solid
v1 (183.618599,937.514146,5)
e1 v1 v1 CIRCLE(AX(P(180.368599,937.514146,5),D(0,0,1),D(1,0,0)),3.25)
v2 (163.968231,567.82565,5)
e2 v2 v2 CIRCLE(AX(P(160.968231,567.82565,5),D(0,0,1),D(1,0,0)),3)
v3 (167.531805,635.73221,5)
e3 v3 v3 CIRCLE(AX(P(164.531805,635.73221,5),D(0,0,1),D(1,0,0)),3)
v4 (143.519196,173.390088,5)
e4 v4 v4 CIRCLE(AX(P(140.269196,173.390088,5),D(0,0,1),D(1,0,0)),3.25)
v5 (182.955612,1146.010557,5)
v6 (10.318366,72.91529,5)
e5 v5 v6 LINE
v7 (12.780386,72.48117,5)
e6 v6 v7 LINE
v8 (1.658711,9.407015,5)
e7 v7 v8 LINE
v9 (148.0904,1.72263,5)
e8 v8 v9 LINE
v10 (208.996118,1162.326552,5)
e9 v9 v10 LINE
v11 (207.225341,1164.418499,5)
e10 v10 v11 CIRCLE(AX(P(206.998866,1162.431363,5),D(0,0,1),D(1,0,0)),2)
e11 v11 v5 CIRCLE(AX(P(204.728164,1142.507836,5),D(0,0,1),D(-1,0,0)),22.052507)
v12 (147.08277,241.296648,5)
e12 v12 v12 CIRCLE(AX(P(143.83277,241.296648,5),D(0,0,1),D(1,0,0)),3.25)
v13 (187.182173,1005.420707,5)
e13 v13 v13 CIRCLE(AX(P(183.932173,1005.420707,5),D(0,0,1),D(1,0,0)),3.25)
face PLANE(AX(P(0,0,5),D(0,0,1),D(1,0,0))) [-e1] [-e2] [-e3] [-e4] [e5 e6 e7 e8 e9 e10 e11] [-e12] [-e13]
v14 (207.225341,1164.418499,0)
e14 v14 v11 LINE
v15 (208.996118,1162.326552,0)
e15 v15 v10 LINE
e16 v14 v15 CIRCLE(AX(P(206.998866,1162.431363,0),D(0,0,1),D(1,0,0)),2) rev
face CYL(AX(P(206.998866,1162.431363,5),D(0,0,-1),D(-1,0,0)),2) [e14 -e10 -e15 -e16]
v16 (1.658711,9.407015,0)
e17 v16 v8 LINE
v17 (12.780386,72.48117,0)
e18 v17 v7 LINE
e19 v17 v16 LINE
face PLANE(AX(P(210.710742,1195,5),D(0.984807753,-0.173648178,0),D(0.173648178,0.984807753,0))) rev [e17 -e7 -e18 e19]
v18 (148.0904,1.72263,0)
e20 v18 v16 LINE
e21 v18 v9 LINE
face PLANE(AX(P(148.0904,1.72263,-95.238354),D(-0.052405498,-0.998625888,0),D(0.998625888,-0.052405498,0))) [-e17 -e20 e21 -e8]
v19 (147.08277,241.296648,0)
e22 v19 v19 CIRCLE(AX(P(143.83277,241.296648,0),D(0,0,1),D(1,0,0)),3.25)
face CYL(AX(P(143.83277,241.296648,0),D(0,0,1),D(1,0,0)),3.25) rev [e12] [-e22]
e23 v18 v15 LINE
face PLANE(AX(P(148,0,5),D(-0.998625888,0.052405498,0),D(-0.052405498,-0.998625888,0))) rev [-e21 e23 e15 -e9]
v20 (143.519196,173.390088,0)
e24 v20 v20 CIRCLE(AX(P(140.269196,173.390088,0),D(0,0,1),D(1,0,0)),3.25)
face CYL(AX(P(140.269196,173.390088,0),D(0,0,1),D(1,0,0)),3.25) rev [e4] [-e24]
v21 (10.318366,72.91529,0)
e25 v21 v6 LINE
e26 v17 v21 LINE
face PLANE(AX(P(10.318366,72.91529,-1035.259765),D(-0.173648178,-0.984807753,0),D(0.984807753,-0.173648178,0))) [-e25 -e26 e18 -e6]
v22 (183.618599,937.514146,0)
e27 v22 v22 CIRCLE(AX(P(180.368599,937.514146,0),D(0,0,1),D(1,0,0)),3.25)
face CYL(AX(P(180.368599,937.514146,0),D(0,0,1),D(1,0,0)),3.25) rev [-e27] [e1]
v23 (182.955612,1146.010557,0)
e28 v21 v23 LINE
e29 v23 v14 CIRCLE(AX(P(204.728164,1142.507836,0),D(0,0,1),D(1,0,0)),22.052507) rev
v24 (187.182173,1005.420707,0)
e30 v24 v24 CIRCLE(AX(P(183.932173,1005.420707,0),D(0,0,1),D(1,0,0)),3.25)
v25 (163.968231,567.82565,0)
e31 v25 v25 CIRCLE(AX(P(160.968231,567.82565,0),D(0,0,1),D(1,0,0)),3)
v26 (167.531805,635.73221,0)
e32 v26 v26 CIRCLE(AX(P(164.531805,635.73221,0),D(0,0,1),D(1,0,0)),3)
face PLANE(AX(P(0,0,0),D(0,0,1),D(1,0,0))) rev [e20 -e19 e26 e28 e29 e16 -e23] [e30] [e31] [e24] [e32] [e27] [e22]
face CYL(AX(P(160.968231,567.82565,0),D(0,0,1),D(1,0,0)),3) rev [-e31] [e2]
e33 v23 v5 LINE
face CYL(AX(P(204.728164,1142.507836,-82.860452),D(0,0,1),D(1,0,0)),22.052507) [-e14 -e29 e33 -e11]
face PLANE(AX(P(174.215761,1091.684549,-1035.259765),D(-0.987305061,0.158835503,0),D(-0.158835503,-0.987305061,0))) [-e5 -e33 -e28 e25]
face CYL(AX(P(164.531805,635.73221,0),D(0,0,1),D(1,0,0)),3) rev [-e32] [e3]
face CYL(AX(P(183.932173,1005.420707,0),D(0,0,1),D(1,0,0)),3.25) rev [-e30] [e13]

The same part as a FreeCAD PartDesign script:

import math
import FreeCAD as App
import Part
import Sketcher
Q = App.Units.Quantity


def edges_at(feature, points):
    """Names of the edges that pass closest to the given points."""
    edges = feature.Shape.Edges
    near = lambda p: min(range(len(edges)), key=lambda i: edges[i].distToShape(Part.Vertex(*p))[0])
    return sorted({f"Edge{near(p) + 1}" for p in points})


def add_polygon(sketch, points):
    """Adds a closed chain of lines whose ends are joined by coincident constraints."""
    first, n = sketch.GeometryCount, len(points)
    for a, b in zip(points, points[1:] + points[:1]):
        sketch.addGeometry(Part.LineSegment(App.Vector(*a, 0), App.Vector(*b, 0)), False)
    for i in range(n):
        sketch.addConstraint(Sketcher.Constraint("Coincident", first + i, 2, first + (i + 1) % n, 1))

doc = App.newDocument("Part")
body = doc.addObject("PartDesign::Body", "Body")

# Sketch on XY plane
sketch1 = body.newObject("Sketcher::SketchObject", "Sketch")
sketch1.AttachmentSupport = (doc.getObject("XY_Plane"), [""])
sketch1.MapMode = "FlatFace"
add_polygon(sketch1, [(0, 0), (148, 0), (211, 1195)])  # lines 0-2
sketch1.addConstraint(Sketcher.Constraint("Horizontal", 0))
sketch1.addConstraint(Sketcher.Constraint("Coincident", 2, 2, -1, 1))
sketch1.addConstraint(Sketcher.Constraint("DistanceX", 0, 1, 0, 2, Q("148 mm")))
sketch1.addConstraint(Sketcher.Constraint("Angle", 2, Q("-100 deg")))
sketch1.addConstraint(Sketcher.Constraint("DistanceY", -1, 1, 1, 2, Q("1195 mm")))
pad1 = body.newObject("PartDesign::Pad", "Pad")
pad1.Profile = sketch1
pad1.Length = 5
doc.recompute()

fillet = body.newObject("PartDesign::Fillet", "Fillet")
fillet.Base = (pad1, edges_at(pad1, [(210.711, 1195, 2.5)]))
fillet.Radius = 2

# Sketch on XY plane
sketch2 = body.newObject("Sketcher::SketchObject", "Sketch001")
sketch2.AttachmentSupport = (doc.getObject("XY_Plane"), [""])
sketch2.MapMode = "FlatFace"
sketch2.AttachmentOffset = App.Placement(App.Vector(0, 0, 5), App.Rotation())
add_polygon(sketch2, [(191.9, 1088.6), (174.2, 1091.7), (10.3, 72.9), (12.8, 72.5)])  # lines 0-3
sketch2.addConstraint(Sketcher.Constraint("Parallel", 0, 2))
sketch2.addConstraint(Sketcher.Constraint("Perpendicular", 2, 3))
sketch2.addConstraint(Sketcher.Constraint("Angle", 0, Q("170 deg")))
sketch2.addConstraint(Sketcher.Constraint("Distance", 0, Q("18 mm")))
sketch2.addConstraint(Sketcher.Constraint("Distance", 2, Q("2.5 mm")))
sketch2.addConstraint(Sketcher.Constraint("DistanceX", -1, 1, 3, 2, Q("191.942301 mm")))
sketch2.addConstraint(Sketcher.Constraint("Distance", 1, Q("1031.86877 mm")))
sketch2.addConstraint(Sketcher.Constraint("DistanceY", -1, 1, 0, 2, Q("1091.684549 mm")))
pad2 = body.newObject("PartDesign::Pad", "Pad001")
pad2.Profile = sketch2
pad2.Length = 5
pad2.Reversed = True

# Sketch on XY plane
sketch3 = body.newObject("Sketcher::SketchObject", "Sketch002")
sketch3.AttachmentSupport = (doc.getObject("XY_Plane"), [""])
sketch3.MapMode = "FlatFace"
sketch3.AttachmentOffset = App.Placement(App.Vector(0, 0, 5), App.Rotation())
sketch3.addGeometry(Part.LineSegment(App.Vector(183, 1146, 0), App.Vector(174.2, 1091.7, 0)), False)
sketch3.addGeometry(Part.LineSegment(App.Vector(174.2, 1091.7, 0), App.Vector(191.9, 1088.6, 0)), False)
sketch3.addGeometry(Part.LineSegment(App.Vector(191.9, 1088.6, 0), App.Vector(205, 1162.8, 0)), False)
sketch3.addGeometry(Part.ArcOfCircle(Part.Circle(App.Vector(207, 1162.4, 0), App.Vector(0, 0, 1), 2), math.radians(83), math.radians(170)), False)
sketch3.addGeometry(Part.ArcOfCircle(Part.Circle(App.Vector(204.7, 1142.5, 0), App.Vector(0, 0, 1), 22.1), math.radians(83), math.radians(171)), False)
sketch3.addConstraint(Sketcher.Constraint("Coincident", 0, 2, 1, 1))
sketch3.addConstraint(Sketcher.Constraint("Coincident", 1, 2, 2, 1))
sketch3.addConstraint(Sketcher.Constraint("Tangent", 2, 2, 3, 2))
sketch3.addConstraint(Sketcher.Constraint("Tangent", 3, 1, 4, 1))
sketch3.addConstraint(Sketcher.Constraint("Tangent", 4, 2, 0, 1))
sketch3.addConstraint(Sketcher.Constraint("Perpendicular", 1, 2))
sketch3.addConstraint(Sketcher.Constraint("Radius", 3, Q("2 mm")))
sketch3.addConstraint(Sketcher.Constraint("Angle", 1, Q("-10 deg")))
sketch3.addConstraint(Sketcher.Constraint("Distance", 1, Q("18 mm")))
sketch3.addConstraint(Sketcher.Constraint("Radius", 4, Q("22.052507 mm")))
sketch3.addConstraint(Sketcher.Constraint("DistanceX", -1, 1, 1, 2, Q("191.942301 mm")))
sketch3.addConstraint(Sketcher.Constraint("DistanceY", -1, 1, 3, 1, Q("1164.418499 mm")))
sketch3.addConstraint(Sketcher.Constraint("DistanceX", 4, 3, 3, 3, Q("2.270702 mm")))
sketch3.addConstraint(Sketcher.Constraint("Distance", 0, Q("55.024541 mm")))
pad3 = body.newObject("PartDesign::Pad", "Pad002")
pad3.Profile = sketch3
pad3.Length = 5
pad3.Reversed = True

# Sketch on XY plane
sketch4 = body.newObject("Sketcher::SketchObject", "Sketch003")
sketch4.AttachmentSupport = (doc.getObject("XY_Plane"), [""])
sketch4.MapMode = "FlatFace"
sketch4.AttachmentOffset = App.Placement(App.Vector(0, 0, 5), App.Rotation())
add_polygon(sketch4, [(2.1, 12), (0, 0), (148, 0), (148.1, 1.7)])  # lines 0-3
sketch4.addConstraint(Sketcher.Constraint("Horizontal", 1))
sketch4.addConstraint(Sketcher.Constraint("Coincident", 0, 2, -1, 1))
sketch4.addConstraint(Sketcher.Constraint("DistanceX", 1, 1, 1, 2, Q("148 mm")))
sketch4.addConstraint(Sketcher.Constraint("Angle", 0, Q("-100 deg")))
sketch4.addConstraint(Sketcher.Constraint("Distance", 0, Q("12.16615 mm")))
sketch4.addConstraint(Sketcher.Constraint("Distance", 2, Q("1.68512 mm")))
sketch4.addConstraint(Sketcher.Constraint("DistanceX", -1, 1, 2, 2, Q("148.08831 mm")))
pad4 = body.newObject("PartDesign::Pad", "Pad003")
pad4.Profile = sketch4
pad4.Length = 5
pad4.Reversed = True

# Sketch on XY plane
sketch5 = body.newObject("Sketcher::SketchObject", "Sketch004")
sketch5.AttachmentSupport = (doc.getObject("XY_Plane"), [""])
sketch5.MapMode = "FlatFace"
sketch5.AttachmentOffset = App.Placement(App.Vector(0, 0, 5), App.Rotation())
add_polygon(sketch5, [(148.7, 12.9), (0.5, 3.1), (0, 0), (148, 0)])  # lines 0-3
sketch5.addConstraint(Sketcher.Constraint("Horizontal", 2))
sketch5.addConstraint(Sketcher.Constraint("Coincident", 1, 2, -1, 1))
sketch5.addConstraint(Sketcher.Constraint("DistanceX", 2, 1, 2, 2, Q("148 mm")))
sketch5.addConstraint(Sketcher.Constraint("Angle", 1, Q("-100 deg")))
sketch5.addConstraint(Sketcher.Constraint("DistanceY", -1, 1, 0, 2, Q("3.093031 mm")))
sketch5.addConstraint(Sketcher.Constraint("DistanceX", -1, 1, 3, 2, Q("148.67928 mm")))
sketch5.addConstraint(Sketcher.Constraint("DistanceY", 0, 2, 3, 2, Q("9.851161 mm")))
pocket1 = body.newObject("PartDesign::Pocket", "Pocket")
pocket1.Profile = sketch5
pocket1.Type = "ThroughAll"

# Sketch on XY plane
sketch6 = body.newObject("Sketcher::SketchObject", "Sketch005")
sketch6.AttachmentSupport = (doc.getObject("XY_Plane"), [""])
sketch6.MapMode = "FlatFace"
sketch6.AttachmentOffset = App.Placement(App.Vector(0, 0, 5), App.Rotation())
sketch6.addGeometry(Part.Circle(App.Vector(180.4, 937.5, 0), App.Vector(0, 0, 1), 3.2), False)
sketch6.addGeometry(Part.Circle(App.Vector(183.9, 1005.4, 0), App.Vector(0, 0, 1), 3.2), False)
sketch6.addGeometry(Part.Circle(App.Vector(143.8, 241.3, 0), App.Vector(0, 0, 1), 3.2), False)
sketch6.addGeometry(Part.Circle(App.Vector(140.3, 173.4, 0), App.Vector(0, 0, 1), 3.2), False)
sketch6.addConstraint(Sketcher.Constraint("Equal", 0, 1))
sketch6.addConstraint(Sketcher.Constraint("Equal", 1, 2))
sketch6.addConstraint(Sketcher.Constraint("Equal", 2, 3))
sketch6.addConstraint(Sketcher.Constraint("Diameter", 0, Q("6.5 mm")))
sketch6.addConstraint(Sketcher.Constraint("DistanceX", -1, 1, 0, 3, Q("180.368599 mm")))
sketch6.addConstraint(Sketcher.Constraint("DistanceY", 2, 3, 0, 3, Q("696.217498 mm")))
sketch6.addConstraint(Sketcher.Constraint("DistanceX", -1, 1, 2, 3, Q("143.83277 mm")))
sketch6.addConstraint(Sketcher.Constraint("DistanceY", -1, 1, 2, 3, Q("241.296648 mm")))
sketch6.addConstraint(Sketcher.Constraint("DistanceY", 0, 3, 1, 3, Q("67.90656 mm")))
sketch6.addConstraint(Sketcher.Constraint("DistanceY", 3, 3, 2, 3, Q("67.90656 mm")))
sketch6.addConstraint(Sketcher.Constraint("DistanceX", -1, 1, 1, 3, Q("183.932173 mm")))
sketch6.addConstraint(Sketcher.Constraint("DistanceX", -1, 1, 3, 3, Q("140.269196 mm")))
pocket2 = body.newObject("PartDesign::Pocket", "Pocket001")
pocket2.Profile = sketch6
pocket2.Type = "ThroughAll"

# Sketch on XY plane
sketch7 = body.newObject("Sketcher::SketchObject", "Sketch006")
sketch7.AttachmentSupport = (doc.getObject("XY_Plane"), [""])
sketch7.MapMode = "FlatFace"
sketch7.AttachmentOffset = App.Placement(App.Vector(0, 0, 5), App.Rotation())
add_polygon(sketch7, [(148, 2), (149, 13), (54, 7)])  # lines 0-2
sketch7.addConstraint(Sketcher.Constraint("Perpendicular", 0, 2))
sketch7.addConstraint(Sketcher.Constraint("DistanceX", -1, 1, 2, 2, Q("148.0904 mm")))
sketch7.addConstraint(Sketcher.Constraint("DistanceY", 1, 2, 0, 2, Q("6.289398 mm")))
sketch7.addConstraint(Sketcher.Constraint("Distance", 2, Q("94.115391 mm")))
sketch7.addConstraint(Sketcher.Constraint("DistanceX", -1, 1, 0, 2, Q("148.67928 mm")))
sketch7.addConstraint(Sketcher.Constraint("DistanceY", -1, 1, 2, 2, Q("1.72263 mm")))
pad5 = body.newObject("PartDesign::Pad", "Pad004")
pad5.Profile = sketch7
pad5.Length = 5
pad5.Reversed = True

# Sketch on XY plane
sketch8 = body.newObject("Sketcher::SketchObject", "Sketch007")
sketch8.AttachmentSupport = (doc.getObject("XY_Plane"), [""])
sketch8.MapMode = "FlatFace"
sketch8.AttachmentOffset = App.Placement(App.Vector(0, 0, 5), App.Rotation())
add_polygon(sketch8, [(54, 7), (2, 9), (1, 3)])  # lines 0-2
sketch8.addConstraint(Sketcher.Constraint("Angle", 1, Q("-100 deg")))
sketch8.addConstraint(Sketcher.Constraint("Distance", 2, Q("53.677249 mm")))
sketch8.addConstraint(Sketcher.Constraint("DistanceX", -1, 1, 0, 2, Q("1.658711 mm")))
sketch8.addConstraint(Sketcher.Constraint("DistanceY", -1, 1, 1, 2, Q("3.093031 mm")))
sketch8.addConstraint(Sketcher.Constraint("DistanceY", 2, 2, 0, 2, Q("2.752221 mm")))
sketch8.addConstraint(Sketcher.Constraint("DistanceX", 1, 2, 2, 2, Q("53.558948 mm")))
pocket3 = body.newObject("PartDesign::Pocket", "Pocket002")
pocket3.Profile = sketch8
pocket3.Type = "ThroughAll"

# Sketch on XY plane
sketch9 = body.newObject("Sketcher::SketchObject", "Sketch008")
sketch9.AttachmentSupport = (doc.getObject("XY_Plane"), [""])
sketch9.MapMode = "FlatFace"
sketch9.AttachmentOffset = App.Placement(App.Vector(0, 0, 5), App.Rotation())
sketch9.addGeometry(Part.Circle(App.Vector(161, 567.8, 0), App.Vector(0, 0, 1), 3), False)
sketch9.addGeometry(Part.Circle(App.Vector(164.5, 635.7, 0), App.Vector(0, 0, 1), 3), False)
sketch9.addConstraint(Sketcher.Constraint("Equal", 0, 1))
sketch9.addConstraint(Sketcher.Constraint("Diameter", 0, Q("6 mm")))
sketch9.addConstraint(Sketcher.Constraint("DistanceX", -1, 1, 0, 3, Q("160.968231 mm")))
sketch9.addConstraint(Sketcher.Constraint("DistanceY", -1, 1, 0, 3, Q("567.82565 mm")))
sketch9.addConstraint(Sketcher.Constraint("DistanceY", -1, 1, 1, 3, Q("635.73221 mm")))
sketch9.addConstraint(Sketcher.Constraint("DistanceX", -1, 1, 1, 3, Q("164.531805 mm")))
pocket4 = body.newObject("PartDesign::Pocket", "Pocket003")
pocket4.Profile = sketch9
pocket4.Type = "ThroughAll"

doc.recompute()
